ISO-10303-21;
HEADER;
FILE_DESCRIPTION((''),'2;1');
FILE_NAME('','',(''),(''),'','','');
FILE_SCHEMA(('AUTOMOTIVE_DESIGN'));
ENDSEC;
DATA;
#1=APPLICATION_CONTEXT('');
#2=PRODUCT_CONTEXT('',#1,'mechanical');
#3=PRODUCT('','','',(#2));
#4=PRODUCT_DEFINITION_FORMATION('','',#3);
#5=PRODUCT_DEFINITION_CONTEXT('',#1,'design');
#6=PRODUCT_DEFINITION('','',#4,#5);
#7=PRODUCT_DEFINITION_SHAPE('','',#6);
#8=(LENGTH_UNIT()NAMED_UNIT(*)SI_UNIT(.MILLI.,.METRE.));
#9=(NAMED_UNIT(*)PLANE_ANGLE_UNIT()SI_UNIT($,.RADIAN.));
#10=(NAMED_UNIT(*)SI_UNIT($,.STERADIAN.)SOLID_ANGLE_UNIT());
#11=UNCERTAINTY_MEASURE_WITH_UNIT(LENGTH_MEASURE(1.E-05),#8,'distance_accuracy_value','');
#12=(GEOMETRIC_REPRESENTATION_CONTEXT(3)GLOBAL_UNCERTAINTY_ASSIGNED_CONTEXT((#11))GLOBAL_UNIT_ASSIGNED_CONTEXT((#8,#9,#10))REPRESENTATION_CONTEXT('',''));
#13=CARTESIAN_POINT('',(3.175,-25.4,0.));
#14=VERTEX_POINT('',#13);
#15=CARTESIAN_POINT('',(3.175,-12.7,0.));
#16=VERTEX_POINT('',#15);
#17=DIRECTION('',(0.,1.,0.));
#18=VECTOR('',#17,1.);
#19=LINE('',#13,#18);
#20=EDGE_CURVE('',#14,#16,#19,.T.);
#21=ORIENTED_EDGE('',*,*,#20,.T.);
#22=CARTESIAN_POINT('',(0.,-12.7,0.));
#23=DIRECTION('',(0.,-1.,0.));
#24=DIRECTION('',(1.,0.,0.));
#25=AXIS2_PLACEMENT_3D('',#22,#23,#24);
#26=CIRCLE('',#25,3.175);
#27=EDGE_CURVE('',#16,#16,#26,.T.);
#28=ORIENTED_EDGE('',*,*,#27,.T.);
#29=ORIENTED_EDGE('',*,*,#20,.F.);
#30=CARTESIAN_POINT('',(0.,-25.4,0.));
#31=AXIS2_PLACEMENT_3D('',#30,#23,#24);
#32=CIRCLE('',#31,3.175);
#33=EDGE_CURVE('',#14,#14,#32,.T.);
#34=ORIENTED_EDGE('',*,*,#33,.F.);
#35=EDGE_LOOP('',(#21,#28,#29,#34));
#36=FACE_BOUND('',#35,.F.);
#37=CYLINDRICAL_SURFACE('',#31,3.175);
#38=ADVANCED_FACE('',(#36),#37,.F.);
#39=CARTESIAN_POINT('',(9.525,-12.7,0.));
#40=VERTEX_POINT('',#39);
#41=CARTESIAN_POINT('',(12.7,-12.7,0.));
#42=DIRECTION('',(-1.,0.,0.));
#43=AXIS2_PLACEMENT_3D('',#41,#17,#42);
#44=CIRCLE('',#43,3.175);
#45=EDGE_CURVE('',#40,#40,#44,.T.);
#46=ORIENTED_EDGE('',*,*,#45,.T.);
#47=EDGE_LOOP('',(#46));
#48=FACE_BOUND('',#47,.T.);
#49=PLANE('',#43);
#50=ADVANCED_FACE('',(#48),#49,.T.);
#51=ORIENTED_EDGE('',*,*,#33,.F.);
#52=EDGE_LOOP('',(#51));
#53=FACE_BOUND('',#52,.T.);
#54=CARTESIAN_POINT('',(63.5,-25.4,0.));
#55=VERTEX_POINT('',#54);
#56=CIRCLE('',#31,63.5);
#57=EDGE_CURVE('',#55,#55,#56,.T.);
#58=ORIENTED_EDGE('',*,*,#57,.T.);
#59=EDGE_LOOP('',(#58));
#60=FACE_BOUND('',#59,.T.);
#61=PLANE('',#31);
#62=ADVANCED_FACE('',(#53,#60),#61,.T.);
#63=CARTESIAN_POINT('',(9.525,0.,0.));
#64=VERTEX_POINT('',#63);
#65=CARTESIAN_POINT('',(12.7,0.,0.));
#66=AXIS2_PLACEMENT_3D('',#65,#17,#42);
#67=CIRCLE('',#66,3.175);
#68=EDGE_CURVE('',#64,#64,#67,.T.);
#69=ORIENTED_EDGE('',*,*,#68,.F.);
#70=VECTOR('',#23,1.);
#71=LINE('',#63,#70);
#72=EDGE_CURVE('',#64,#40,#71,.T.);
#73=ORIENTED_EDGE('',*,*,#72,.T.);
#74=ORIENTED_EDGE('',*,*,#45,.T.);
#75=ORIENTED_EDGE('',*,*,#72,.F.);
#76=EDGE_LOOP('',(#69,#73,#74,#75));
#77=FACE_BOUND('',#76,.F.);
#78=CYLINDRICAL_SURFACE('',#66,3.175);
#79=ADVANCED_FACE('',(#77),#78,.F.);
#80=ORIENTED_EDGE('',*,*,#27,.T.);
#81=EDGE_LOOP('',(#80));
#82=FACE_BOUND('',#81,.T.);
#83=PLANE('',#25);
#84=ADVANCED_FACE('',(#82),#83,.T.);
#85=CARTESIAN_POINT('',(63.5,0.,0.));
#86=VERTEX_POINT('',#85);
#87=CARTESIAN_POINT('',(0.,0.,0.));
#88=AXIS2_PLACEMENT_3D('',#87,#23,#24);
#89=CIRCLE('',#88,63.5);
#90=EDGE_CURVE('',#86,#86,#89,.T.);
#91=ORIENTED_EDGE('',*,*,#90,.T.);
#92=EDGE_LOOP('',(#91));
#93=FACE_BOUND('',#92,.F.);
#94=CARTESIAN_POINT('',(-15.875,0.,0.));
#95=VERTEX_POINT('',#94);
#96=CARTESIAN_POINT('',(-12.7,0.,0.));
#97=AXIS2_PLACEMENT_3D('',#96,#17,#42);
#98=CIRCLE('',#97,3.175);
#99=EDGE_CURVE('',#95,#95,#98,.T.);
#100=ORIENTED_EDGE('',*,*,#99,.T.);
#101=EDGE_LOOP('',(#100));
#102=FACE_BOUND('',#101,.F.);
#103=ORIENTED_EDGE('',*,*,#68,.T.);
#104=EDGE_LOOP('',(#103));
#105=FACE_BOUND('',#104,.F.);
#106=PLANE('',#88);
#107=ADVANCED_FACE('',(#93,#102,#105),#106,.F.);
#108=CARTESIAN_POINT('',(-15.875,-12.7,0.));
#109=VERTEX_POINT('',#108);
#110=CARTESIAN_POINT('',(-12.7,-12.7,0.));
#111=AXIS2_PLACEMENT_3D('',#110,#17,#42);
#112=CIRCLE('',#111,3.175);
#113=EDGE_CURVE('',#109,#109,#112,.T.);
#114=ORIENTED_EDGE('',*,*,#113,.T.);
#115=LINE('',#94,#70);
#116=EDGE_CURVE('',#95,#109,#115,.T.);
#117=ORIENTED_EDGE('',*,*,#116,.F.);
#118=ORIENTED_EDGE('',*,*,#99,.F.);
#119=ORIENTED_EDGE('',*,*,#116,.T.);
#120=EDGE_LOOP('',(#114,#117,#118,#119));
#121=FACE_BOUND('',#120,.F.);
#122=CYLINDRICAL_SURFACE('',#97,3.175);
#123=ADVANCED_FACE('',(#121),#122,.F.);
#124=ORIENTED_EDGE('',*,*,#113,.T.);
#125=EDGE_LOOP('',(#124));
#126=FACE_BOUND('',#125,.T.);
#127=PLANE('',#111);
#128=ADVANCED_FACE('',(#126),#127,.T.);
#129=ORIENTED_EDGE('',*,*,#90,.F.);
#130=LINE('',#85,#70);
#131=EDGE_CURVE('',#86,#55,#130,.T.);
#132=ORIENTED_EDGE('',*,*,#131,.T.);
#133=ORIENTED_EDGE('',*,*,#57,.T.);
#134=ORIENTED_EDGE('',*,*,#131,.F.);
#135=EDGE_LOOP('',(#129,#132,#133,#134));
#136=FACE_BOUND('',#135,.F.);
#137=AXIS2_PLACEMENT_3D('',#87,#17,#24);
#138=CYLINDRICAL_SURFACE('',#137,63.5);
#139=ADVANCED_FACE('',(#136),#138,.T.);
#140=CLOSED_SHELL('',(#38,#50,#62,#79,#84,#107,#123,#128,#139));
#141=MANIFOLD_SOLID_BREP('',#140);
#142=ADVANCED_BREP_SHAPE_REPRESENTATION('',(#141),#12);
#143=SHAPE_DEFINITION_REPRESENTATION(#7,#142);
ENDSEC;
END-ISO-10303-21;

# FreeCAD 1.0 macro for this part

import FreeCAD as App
import Part
import Sketcher
Q = App.Units.Quantity

doc = App.newDocument("Part")
params = doc.addObject("Spreadsheet::Sheet", "Params")
for row, (alias, value) in enumerate([
    ("sketch1_diameter", "5 in"),
    ("pad1_length", "1 in"),
    ("sketch2_diameter", "0.25 in"),
    ("pocket1_length", "0.5 in"),
    ("sketch3_diameter", "0.25 in"),
    ("pocket2_length", "0.5 in"),
], start=1):
    params.set(f"A{row}", alias)
    params.set(f"B{row}", "=" + value)
    params.setAlias(f"B{row}", alias)

body = doc.addObject("PartDesign::Body", "Body")

# Sketch on XZ plane
sketch1 = body.newObject("Sketcher::SketchObject", "Sketch")
sketch1.AttachmentSupport = (doc.getObject("XZ_Plane"), [""])
sketch1.MapMode = "FlatFace"
sketch1.addGeometry(Part.Circle(App.Vector(0, 0, 0), App.Vector(0, 0, 1), 64), False)
sketch1.addConstraint(Sketcher.Constraint("Coincident", 0, 3, -1, 1))
sketch1.addConstraint(Sketcher.Constraint("Diameter", 0, Q("5 in")))
sketch1.setExpression("Constraints[1]", "Params.sketch1_diameter")
pad1 = body.newObject("PartDesign::Pad", "Pad")
pad1.Profile = sketch1
pad1.setExpression("Length", "Params.pad1_length")

# Sketch on XZ plane
sketch2 = body.newObject("Sketcher::SketchObject", "Sketch001")
sketch2.AttachmentSupport = (doc.getObject("XZ_Plane"), [""])
sketch2.MapMode = "FlatFace"
sketch2.AttachmentOffset = App.Placement(App.Vector(0, 0, 1 * 25.4), App.Rotation())
sketch2.addGeometry(Part.Circle(App.Vector(0, 0, 0), App.Vector(0, 0, 1), 3.2), False)
sketch2.addConstraint(Sketcher.Constraint("Coincident", 0, 3, -1, 1))
sketch2.addConstraint(Sketcher.Constraint("Diameter", 0, Q("0.25 in")))
sketch2.setExpression("Constraints[1]", "Params.sketch2_diameter")
pocket1 = body.newObject("PartDesign::Pocket", "Pocket")
pocket1.Profile = sketch2
pocket1.setExpression("Length", "Params.pocket1_length")

# Sketch on XZ plane
sketch3 = body.newObject("Sketcher::SketchObject", "Sketch002")
sketch3.AttachmentSupport = (doc.getObject("XZ_Plane"), [""])
sketch3.MapMode = "FlatFace"
sketch3.addGeometry(Part.Circle(App.Vector(12.7, 0, 0), App.Vector(0, 0, 1), 3.2), False)
sketch3.addGeometry(Part.Circle(App.Vector(-12.7, 0, 0), App.Vector(0, 0, 1), 3.2), False)
sketch3.addConstraint(Sketcher.Constraint("Equal", 0, 1))
sketch3.addConstraint(Sketcher.Constraint("Symmetric", 0, 3, 1, 3, -1, 1))
sketch3.addConstraint(Sketcher.Constraint("PointOnObject", 0, 3, -1))
sketch3.addConstraint(Sketcher.Constraint("Diameter", 0, Q("0.25 in")))
sketch3.addConstraint(Sketcher.Constraint("DistanceX", 1, 3, 0, 3, Q("1 in")))
sketch3.setExpression("Constraints[3]", "Params.sketch3_diameter")
pocket2 = body.newObject("PartDesign::Pocket", "Pocket001")
pocket2.Profile = sketch3
pocket2.setExpression("Length", "Params.pocket2_length")
pocket2.Reversed = True

doc.recompute()
